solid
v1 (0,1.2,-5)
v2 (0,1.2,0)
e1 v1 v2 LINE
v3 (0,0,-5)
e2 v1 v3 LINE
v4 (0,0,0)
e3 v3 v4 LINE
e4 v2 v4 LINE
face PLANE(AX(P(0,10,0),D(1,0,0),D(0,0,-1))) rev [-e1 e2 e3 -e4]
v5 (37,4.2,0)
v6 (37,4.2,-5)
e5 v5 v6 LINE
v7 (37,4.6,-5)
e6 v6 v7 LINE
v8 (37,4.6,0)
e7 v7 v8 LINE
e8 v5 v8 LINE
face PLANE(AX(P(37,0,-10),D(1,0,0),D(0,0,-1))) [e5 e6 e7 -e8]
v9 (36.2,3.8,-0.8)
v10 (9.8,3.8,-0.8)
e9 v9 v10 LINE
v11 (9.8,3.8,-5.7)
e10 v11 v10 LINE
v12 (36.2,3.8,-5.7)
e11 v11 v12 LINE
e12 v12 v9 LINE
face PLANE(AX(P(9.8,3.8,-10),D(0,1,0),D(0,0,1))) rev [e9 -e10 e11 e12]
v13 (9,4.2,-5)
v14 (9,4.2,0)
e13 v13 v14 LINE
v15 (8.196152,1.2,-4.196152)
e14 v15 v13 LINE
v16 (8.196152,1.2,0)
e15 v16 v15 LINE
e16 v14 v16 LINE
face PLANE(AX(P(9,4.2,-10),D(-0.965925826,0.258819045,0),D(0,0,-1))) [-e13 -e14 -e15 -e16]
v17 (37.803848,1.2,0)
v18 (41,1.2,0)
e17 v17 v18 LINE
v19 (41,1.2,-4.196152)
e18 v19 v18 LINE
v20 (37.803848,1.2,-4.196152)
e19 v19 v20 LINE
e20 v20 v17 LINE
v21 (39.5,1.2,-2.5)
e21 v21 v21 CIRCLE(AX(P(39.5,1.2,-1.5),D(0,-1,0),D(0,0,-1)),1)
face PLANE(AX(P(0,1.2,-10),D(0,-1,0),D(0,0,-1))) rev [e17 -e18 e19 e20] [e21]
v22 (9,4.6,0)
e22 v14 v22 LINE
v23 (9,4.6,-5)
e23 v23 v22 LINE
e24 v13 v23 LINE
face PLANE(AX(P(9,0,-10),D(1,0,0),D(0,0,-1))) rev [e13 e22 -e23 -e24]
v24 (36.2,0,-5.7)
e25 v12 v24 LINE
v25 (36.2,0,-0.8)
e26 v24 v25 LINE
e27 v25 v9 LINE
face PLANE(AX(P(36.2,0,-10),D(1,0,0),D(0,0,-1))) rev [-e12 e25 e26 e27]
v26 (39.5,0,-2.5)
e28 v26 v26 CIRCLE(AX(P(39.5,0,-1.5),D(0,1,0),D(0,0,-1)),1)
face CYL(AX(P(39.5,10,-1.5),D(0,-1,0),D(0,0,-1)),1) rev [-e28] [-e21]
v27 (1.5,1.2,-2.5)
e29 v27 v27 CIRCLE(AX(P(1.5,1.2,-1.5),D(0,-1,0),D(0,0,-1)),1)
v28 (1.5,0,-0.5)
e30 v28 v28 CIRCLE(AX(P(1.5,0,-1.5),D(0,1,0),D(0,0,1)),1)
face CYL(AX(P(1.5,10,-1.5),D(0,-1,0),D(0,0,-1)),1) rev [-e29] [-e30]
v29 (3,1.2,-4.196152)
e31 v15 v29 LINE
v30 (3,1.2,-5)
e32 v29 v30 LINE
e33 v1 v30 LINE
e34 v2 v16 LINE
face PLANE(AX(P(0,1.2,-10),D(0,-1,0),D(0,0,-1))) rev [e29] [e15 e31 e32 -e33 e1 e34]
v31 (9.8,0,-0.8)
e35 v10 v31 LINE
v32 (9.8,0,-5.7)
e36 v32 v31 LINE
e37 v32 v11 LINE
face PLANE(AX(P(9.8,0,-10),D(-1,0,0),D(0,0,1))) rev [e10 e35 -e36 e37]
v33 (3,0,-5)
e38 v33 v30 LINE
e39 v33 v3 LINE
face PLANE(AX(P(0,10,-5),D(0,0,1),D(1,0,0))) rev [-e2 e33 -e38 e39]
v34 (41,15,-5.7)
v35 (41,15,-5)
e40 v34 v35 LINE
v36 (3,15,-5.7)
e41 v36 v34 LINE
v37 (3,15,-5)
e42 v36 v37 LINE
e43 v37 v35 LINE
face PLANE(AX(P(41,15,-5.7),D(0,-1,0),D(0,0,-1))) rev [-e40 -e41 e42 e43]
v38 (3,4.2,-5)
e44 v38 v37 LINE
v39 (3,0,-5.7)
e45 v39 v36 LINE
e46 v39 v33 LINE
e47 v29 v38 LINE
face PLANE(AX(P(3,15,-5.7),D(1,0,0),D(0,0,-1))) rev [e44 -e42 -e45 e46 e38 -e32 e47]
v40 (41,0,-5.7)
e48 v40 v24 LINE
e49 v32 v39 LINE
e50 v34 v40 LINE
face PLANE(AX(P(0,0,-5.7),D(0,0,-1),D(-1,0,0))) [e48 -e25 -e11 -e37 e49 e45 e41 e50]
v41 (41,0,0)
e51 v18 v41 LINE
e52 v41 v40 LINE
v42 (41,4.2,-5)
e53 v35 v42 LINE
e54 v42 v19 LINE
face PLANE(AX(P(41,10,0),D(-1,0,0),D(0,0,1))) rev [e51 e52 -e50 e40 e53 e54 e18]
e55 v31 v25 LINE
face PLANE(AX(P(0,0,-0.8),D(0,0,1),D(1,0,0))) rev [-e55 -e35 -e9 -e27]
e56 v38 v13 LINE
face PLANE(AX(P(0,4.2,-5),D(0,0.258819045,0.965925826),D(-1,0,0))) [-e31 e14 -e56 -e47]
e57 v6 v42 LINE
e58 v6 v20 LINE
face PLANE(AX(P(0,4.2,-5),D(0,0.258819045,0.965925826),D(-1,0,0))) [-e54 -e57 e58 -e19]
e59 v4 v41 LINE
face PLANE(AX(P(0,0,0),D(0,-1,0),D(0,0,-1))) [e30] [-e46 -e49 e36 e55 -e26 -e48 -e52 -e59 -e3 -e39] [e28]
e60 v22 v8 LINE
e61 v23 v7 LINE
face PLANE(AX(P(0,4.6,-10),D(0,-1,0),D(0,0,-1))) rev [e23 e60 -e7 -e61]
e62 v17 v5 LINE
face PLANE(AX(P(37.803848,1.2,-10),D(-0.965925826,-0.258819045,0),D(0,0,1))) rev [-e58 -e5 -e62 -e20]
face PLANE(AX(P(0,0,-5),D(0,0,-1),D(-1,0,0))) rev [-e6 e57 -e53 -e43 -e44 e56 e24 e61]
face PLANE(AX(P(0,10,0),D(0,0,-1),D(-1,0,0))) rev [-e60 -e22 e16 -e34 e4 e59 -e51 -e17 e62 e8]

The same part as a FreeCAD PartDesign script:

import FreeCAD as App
import Part
import Sketcher

V = App.Vector
Q = App.Units.Quantity


def edges_at(feature, points):
    """Names of the edges that pass closest to the given points."""
    edges = feature.Shape.Edges
    near = lambda p: min(range(len(edges)), key=lambda i: edges[i].distToShape(Part.Vertex(*p))[0])
    return sorted({f"Edge{near(p) + 1}" for p in points})


def add_polygon(sketch, points):
    """Adds a closed chain of lines whose ends are joined by coincident constraints."""
    first, n = sketch.GeometryCount, len(points)
    for a, b in zip(points, points[1:] + points[:1]):
        sketch.addGeometry(Part.LineSegment(App.Vector(*a, 0), App.Vector(*b, 0)), False)
    for i in range(n):
        sketch.addConstraint(Sketcher.Constraint("Coincident", first + i, 2, first + (i + 1) % n, 1))

doc = App.newDocument("Part")
body = doc.addObject("PartDesign::Body", "Body")

sketch1 = body.newObject("Sketcher::SketchObject", "Sketch")
sketch1.AttachmentSupport = (doc.getObject("XZ_Plane"), [""])
sketch1.MapMode = "FlatFace"
add_polygon(sketch1, [(0, -5), (0, 0), (41, 0), (41, -5)])
sketch1.addGeometry(Part.Circle(V(1.5, -1.5, 0), V(0, 0, 1), 1), False)
sketch1.addGeometry(Part.Circle(V(39.5, -1.5, 0), V(0, 0, 1), 1), False)
sketch1.addConstraint([
    Sketcher.Constraint("Vertical", 0),
    Sketcher.Constraint("Horizontal", 1),
    Sketcher.Constraint("Vertical", 2),
    Sketcher.Constraint("Horizontal", 3),
    Sketcher.Constraint("Coincident", 0, 2, -1, 1),
    Sketcher.Constraint("Equal", 4, 5),
    Sketcher.Constraint("Horizontal", 4, 3, 5, 3),
    Sketcher.Constraint("Diameter", 4, Q("2 mm")),
    Sketcher.Constraint("DistanceX", 1, 1, 1, 2, Q("41 mm")),
    Sketcher.Constraint("DistanceY", 0, 1, 0, 2, Q("5 mm")),
    Sketcher.Constraint("DistanceX", 4, 3, 5, 3, Q("38 mm")),
    Sketcher.Constraint("DistanceX", -1, 1, 4, 3, Q("1.5 mm")),
    Sketcher.Constraint("DistanceY", 4, 3, -1, 1, Q("1.5 mm")),
])
pad1 = body.newObject("PartDesign::Pad", "Pad")
pad1.Profile = sketch1
pad1.Length = 10
pad1.Reversed = True

sketch2 = body.newObject("Sketcher::SketchObject", "Sketch001")
sketch2.AttachmentSupport = (doc.getObject("XY_Plane"), [""])
sketch2.MapMode = "FlatFace"
add_polygon(sketch2, [(0, 10), (0, 1.2), (9, 1.2), (9, 4.6), (37, 4.6), (37, 1.2), (41, 1.2), (41, 10)])
sketch2.addConstraint([
    Sketcher.Constraint("Vertical", 0),
    Sketcher.Constraint("Horizontal", 1),
    Sketcher.Constraint("Vertical", 2),
    Sketcher.Constraint("Horizontal", 3),
    Sketcher.Constraint("Vertical", 4),
    Sketcher.Constraint("Horizontal", 5),
    Sketcher.Constraint("Vertical", 6),
    Sketcher.Constraint("Horizontal", 7),
    Sketcher.Constraint("PointOnObject", 0, 2, -2),
    Sketcher.Constraint("Horizontal", 1, 2, 4, 2),
    Sketcher.Constraint("DistanceX", 1, 1, 1, 2, Q("9 mm")),
    Sketcher.Constraint("DistanceX", 3, 1, 3, 2, Q("28 mm")),
    Sketcher.Constraint("DistanceX", 5, 1, 5, 2, Q("4 mm")),
    Sketcher.Constraint("DistanceY", 0, 2, 0, 1, Q("8.8 mm")),
    Sketcher.Constraint("DistanceY", 2, 1, 2, 2, Q("3.4 mm")),
    Sketcher.Constraint("DistanceY", -1, 1, 6, 2, Q("10 mm")),
])
pocket1 = body.newObject("PartDesign::Pocket", "Pocket")
pocket1.Profile = sketch2
pocket1.Length = 10

sketch3 = body.newObject("Sketcher::SketchObject", "Sketch002")
sketch3.AttachmentSupport = (doc.getObject("XY_Plane"), [""])
sketch3.MapMode = "FlatFace"
sketch3.AttachmentOffset = App.Placement(V(0, 0, -5), App.Rotation())
add_polygon(sketch3, [(41, 15), (41, 0), (3, 0), (3, 15)])
sketch3.addConstraint([
    Sketcher.Constraint("Vertical", 0),
    Sketcher.Constraint("Horizontal", 1),
    Sketcher.Constraint("Vertical", 2),
    Sketcher.Constraint("Horizontal", 3),
    Sketcher.Constraint("PointOnObject", 0, 2, -1),
    Sketcher.Constraint("DistanceX", 1, 2, 1, 1, Q("38 mm")),
    Sketcher.Constraint("DistanceY", 0, 2, 0, 1, Q("15 mm")),
    Sketcher.Constraint("DistanceX", -1, 1, 0, 2, Q("41 mm")),
])
pad2 = body.newObject("PartDesign::Pad", "Pad001")
pad2.Profile = sketch3
pad2.Length = 0.7
pad2.Reversed = True

sketch4 = body.newObject("Sketcher::SketchObject", "Sketch003")
sketch4.AttachmentSupport = (doc.getObject("XY_Plane"), [""])
sketch4.MapMode = "FlatFace"
add_polygon(sketch4, [(9.8, 3.8), (9.8, 0), (36.2, 0), (36.2, 3.8)])
sketch4.addConstraint([
    Sketcher.Constraint("Vertical", 0),
    Sketcher.Constraint("Horizontal", 1),
    Sketcher.Constraint("Vertical", 2),
    Sketcher.Constraint("Horizontal", 3),
    Sketcher.Constraint("PointOnObject", 0, 2, -1),
    Sketcher.Constraint("DistanceX", 1, 1, 1, 2, Q("26.4 mm")),
    Sketcher.Constraint("DistanceY", 0, 2, 0, 1, Q("3.8 mm")),
    Sketcher.Constraint("DistanceX", -1, 1, 0, 2, Q("9.8 mm")),
])
pocket2 = body.newObject("PartDesign::Pocket", "Pocket001")
pocket2.Profile = sketch4
pocket2.Length = 10
doc.recompute()

chamfer = body.newObject("PartDesign::Chamfer", "Chamfer")
chamfer.Base = (pocket2, edges_at(pocket2, [(37, 1.2, -2.5)]))
chamfer.ChamferType = "Two distances"
chamfer.Size = 3
chamfer.Size2 = 0.803848
chamfer.FlipDirection = True
doc.recompute()

chamfer2 = body.newObject("PartDesign::Chamfer", "Chamfer001")
chamfer2.Base = (chamfer, edges_at(chamfer, [(9, 1.2, -2.5)]))
chamfer2.ChamferType = "Two distances"
chamfer2.Size = 3
chamfer2.Size2 = 0.803848
doc.recompute()

chamfer3 = body.newObject("PartDesign::Chamfer", "Chamfer002")
chamfer3.Base = (chamfer2, edges_at(chamfer2, [(39.402, 1.2, -5), (5.598, 1.2, -5)]))
chamfer3.ChamferType = "Two distances"
chamfer3.Size = 3
chamfer3.Size2 = 0.803848
chamfer3.FlipDirection = True

sketch5 = body.newObject("Sketcher::SketchObject", "Sketch004")
sketch5.AttachmentSupport = (doc.getObject("XY_Plane"), [""])
sketch5.MapMode = "FlatFace"
add_polygon(sketch5, [(9.8, 3.8), (9.8, 0), (36.2, 0), (36.2, 3.8)])
sketch5.addConstraint([
    Sketcher.Constraint("Vertical", 0),
    Sketcher.Constraint("Horizontal", 1),
    Sketcher.Constraint("Vertical", 2),
    Sketcher.Constraint("Horizontal", 3),
    Sketcher.Constraint("PointOnObject", 0, 2, -1),
    Sketcher.Constraint("DistanceX", 1, 1, 1, 2, Q("26.4 mm")),
    Sketcher.Constraint("DistanceY", 0, 2, 0, 1, Q("3.8 mm")),
    Sketcher.Constraint("DistanceX", -1, 1, 0, 2, Q("9.8 mm")),
])
pad3 = body.newObject("PartDesign::Pad", "Pad002")
pad3.Profile = sketch5
pad3.Length = 0.8
pad3.Reversed = True

doc.recompute()
